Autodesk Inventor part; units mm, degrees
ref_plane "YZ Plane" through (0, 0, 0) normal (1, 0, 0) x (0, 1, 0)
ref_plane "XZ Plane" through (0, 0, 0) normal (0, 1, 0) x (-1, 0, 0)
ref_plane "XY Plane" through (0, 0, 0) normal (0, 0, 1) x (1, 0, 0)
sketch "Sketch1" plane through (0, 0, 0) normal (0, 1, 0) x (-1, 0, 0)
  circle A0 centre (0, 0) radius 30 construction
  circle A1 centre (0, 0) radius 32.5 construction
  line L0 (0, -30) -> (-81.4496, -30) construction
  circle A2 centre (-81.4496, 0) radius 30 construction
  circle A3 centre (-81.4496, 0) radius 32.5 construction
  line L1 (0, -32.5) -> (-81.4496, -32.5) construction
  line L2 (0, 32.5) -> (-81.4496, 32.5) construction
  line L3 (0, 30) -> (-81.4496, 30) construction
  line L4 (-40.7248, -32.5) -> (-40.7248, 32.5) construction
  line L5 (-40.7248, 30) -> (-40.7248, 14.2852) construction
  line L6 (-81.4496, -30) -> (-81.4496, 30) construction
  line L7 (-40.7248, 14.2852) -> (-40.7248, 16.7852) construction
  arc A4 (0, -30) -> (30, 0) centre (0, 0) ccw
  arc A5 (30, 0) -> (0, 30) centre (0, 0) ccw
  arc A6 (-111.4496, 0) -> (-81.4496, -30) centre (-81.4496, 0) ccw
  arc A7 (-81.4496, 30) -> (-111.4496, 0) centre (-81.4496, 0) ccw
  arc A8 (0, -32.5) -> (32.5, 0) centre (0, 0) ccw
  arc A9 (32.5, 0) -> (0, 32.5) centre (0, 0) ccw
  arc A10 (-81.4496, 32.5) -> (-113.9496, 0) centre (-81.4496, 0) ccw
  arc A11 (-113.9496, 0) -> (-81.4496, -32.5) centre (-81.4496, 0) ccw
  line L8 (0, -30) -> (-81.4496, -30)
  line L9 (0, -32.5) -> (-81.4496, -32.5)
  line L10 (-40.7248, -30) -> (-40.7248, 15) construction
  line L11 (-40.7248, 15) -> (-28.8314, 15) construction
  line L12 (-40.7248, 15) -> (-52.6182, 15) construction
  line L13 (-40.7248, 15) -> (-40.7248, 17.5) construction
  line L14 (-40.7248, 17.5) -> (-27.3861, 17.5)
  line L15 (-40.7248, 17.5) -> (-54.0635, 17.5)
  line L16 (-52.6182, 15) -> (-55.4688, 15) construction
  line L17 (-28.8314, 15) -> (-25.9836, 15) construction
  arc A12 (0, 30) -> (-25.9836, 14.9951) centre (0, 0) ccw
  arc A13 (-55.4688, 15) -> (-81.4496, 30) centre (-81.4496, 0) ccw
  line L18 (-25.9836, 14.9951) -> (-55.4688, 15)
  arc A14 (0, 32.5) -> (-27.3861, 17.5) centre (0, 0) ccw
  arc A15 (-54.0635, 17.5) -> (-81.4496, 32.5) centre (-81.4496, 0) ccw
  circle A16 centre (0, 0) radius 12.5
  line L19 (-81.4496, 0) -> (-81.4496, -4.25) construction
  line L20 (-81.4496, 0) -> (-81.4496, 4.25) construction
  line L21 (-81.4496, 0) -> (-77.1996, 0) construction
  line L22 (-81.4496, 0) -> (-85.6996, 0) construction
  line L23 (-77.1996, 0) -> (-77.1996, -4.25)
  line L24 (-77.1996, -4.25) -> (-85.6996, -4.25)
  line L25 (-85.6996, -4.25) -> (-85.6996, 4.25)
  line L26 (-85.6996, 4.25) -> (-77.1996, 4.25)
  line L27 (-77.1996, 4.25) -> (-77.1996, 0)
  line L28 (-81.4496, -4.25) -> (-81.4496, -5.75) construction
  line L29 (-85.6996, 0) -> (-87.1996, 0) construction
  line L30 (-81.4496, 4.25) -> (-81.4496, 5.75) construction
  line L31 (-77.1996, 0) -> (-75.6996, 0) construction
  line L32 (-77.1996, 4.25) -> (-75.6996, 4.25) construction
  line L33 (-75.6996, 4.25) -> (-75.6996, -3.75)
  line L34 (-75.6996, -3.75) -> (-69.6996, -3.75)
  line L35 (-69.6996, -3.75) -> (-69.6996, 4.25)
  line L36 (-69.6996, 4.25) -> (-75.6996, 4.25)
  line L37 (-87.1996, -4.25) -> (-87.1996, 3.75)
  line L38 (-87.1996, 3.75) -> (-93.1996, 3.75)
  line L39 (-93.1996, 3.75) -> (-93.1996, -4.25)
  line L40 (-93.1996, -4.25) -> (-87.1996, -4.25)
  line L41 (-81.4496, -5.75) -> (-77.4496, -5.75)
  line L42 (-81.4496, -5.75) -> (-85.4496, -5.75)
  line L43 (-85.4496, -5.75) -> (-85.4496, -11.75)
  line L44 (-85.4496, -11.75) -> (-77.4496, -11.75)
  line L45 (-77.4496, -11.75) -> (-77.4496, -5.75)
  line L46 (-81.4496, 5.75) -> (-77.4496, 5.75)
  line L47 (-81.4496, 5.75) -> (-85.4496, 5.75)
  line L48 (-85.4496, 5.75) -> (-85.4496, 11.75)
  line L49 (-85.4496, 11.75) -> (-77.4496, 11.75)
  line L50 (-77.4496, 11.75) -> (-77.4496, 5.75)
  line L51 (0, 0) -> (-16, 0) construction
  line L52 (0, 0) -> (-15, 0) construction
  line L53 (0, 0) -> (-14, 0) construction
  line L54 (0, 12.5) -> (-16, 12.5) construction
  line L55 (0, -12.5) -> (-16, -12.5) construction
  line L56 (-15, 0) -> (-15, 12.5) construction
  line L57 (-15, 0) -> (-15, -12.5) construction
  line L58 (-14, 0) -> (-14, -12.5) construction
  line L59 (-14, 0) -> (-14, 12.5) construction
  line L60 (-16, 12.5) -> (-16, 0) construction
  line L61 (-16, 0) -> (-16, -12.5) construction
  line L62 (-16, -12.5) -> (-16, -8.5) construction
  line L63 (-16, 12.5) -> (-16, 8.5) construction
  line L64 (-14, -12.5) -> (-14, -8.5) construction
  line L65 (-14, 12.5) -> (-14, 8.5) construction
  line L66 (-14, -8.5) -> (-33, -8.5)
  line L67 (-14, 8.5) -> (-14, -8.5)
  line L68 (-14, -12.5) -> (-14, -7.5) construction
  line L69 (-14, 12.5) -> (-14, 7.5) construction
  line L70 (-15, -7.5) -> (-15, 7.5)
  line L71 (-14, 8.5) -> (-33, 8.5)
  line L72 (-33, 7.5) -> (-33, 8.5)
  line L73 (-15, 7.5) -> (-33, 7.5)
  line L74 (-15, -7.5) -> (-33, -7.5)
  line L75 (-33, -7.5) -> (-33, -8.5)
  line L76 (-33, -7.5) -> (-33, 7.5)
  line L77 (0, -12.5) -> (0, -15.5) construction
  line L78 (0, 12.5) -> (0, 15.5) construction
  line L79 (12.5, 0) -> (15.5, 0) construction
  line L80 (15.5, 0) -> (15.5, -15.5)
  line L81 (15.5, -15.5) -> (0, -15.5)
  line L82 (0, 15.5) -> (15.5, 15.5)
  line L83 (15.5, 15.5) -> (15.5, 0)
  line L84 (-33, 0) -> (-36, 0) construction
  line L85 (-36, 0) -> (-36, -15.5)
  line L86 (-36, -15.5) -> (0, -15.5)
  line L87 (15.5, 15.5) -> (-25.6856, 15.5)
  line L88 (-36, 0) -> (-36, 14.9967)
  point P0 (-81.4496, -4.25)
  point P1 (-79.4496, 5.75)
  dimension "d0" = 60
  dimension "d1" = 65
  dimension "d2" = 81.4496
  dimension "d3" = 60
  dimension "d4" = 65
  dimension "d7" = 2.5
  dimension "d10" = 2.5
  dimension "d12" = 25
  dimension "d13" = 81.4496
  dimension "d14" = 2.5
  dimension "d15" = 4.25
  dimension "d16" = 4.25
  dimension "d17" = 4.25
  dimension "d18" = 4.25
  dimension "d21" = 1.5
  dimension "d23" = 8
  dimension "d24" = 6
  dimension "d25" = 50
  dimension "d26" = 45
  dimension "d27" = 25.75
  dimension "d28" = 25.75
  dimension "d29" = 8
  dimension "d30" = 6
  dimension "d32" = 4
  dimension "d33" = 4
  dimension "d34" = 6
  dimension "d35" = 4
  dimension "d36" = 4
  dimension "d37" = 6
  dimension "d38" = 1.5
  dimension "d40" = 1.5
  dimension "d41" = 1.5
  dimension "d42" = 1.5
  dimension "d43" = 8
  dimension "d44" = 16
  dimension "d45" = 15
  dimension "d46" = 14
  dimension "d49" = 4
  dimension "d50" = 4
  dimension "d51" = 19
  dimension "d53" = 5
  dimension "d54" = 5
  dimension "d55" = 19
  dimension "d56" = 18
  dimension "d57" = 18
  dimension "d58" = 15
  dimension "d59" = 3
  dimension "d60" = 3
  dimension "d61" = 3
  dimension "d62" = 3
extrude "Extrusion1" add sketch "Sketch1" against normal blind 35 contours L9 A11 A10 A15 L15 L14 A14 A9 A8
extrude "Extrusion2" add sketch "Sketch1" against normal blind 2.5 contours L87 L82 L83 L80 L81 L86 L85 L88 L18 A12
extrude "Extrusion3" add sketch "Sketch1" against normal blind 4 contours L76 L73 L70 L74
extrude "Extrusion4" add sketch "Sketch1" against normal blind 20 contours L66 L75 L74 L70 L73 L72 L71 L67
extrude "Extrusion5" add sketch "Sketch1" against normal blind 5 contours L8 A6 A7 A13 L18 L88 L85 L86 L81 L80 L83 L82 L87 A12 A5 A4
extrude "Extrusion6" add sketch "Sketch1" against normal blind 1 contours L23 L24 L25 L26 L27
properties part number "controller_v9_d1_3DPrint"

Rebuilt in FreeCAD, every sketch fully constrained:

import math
import FreeCAD as App
import Part
import Sketcher

V = App.Vector
Q = App.Units.Quantity

doc = App.newDocument("Part")
params = doc.addObject("Spreadsheet::Sheet", "Params")
for row, (alias, value) in enumerate([
    ("sketch1_radius", "30 mm"),
    ("sketch1_radius2", "32.5 mm"),
    ("pad1_length", "35 mm"),
    ("sketch2_diameter", "25 mm"),
    ("sketch2_radius", "30 mm"),
    ("sketch2_width", "19 mm"),
    ("sketch2_height", "31 mm"),
    ("sketch2_height2", "17 mm"),
    ("pad2_length", "2.5 mm"),
    ("sketch3_width", "18 mm"),
    ("sketch3_height", "15 mm"),
    ("pad3_length", "4 mm"),
    ("sketch4_width", "19 mm"),
    ("sketch4_width2", "18 mm"),
    ("sketch4_height", "15 mm"),
    ("pad4_length", "20 mm"),
    ("sketch5_radius", "30 mm"),
    ("sketch5_width", "8 mm"),
    ("sketch5_width2", "6 mm"),
    ("sketch5_height", "31 mm"),
    ("sketch5_width3", "51.5 mm"),
    ("pad5_length", "5 mm"),
    ("pad6_length", "1 mm"),
], start=1):
    params.set(f"A{row}", alias)
    params.set(f"B{row}", "=" + value)
    params.setAlias(f"B{row}", alias)

body = doc.addObject("PartDesign::Body", "Body")

sketch1 = body.newObject("Sketcher::SketchObject", "Sketch")
sketch1.AttachmentSupport = (doc.getObject("XZ_Plane"), [""])
sketch1.MapMode = "FlatFace"
sketch1.addGeometry(Part.LineSegment(V(81, -32, 0), V(0, -32, 0)), False)
sketch1.addGeometry(Part.ArcOfCircle(Part.Circle(V(0, 0, 0), V(0, 0, 1), 32), math.radians(90), math.radians(270)), False)
sketch1.addGeometry(Part.ArcOfCircle(Part.Circle(V(0, 0, 0), V(0, 0, 1), 32), math.radians(33), math.radians(90)), False)
sketch1.addGeometry(Part.LineSegment(V(27, 18, 0), V(54, 18, 0)), False)
sketch1.addGeometry(Part.ArcOfCircle(Part.Circle(V(81, 0, 0), V(0, 0, 1), 32), math.radians(90), math.radians(147)), False)
sketch1.addGeometry(Part.ArcOfCircle(Part.Circle(V(81, 0, 0), V(0, 0, 1), 32), math.radians(-90), math.radians(90)), False)
sketch1.addGeometry(Part.ArcOfCircle(Part.Circle(V(0, 0, 0), V(0, 0, 1), 30), math.radians(90), math.radians(270)), False)
sketch1.addGeometry(Part.LineSegment(V(0, -30, 0), V(81, -30, 0)), False)
sketch1.addGeometry(Part.ArcOfCircle(Part.Circle(V(81, 0, 0), V(0, 0, 1), 30), math.radians(-90), math.radians(90)), False)
sketch1.addGeometry(Part.ArcOfCircle(Part.Circle(V(81, 0, 0), V(0, 0, 1), 30), math.radians(90), math.radians(150)), False)
sketch1.addGeometry(Part.LineSegment(V(55, 15, 0), V(26, 15, 0)), False)
sketch1.addGeometry(Part.ArcOfCircle(Part.Circle(V(0, 0, 0), V(0, 0, 1), 30), math.radians(30), math.radians(90)), False)
sketch1.addConstraint(Sketcher.Constraint("Tangent", 0, 2, 1, 2))
sketch1.addConstraint(Sketcher.Constraint("Tangent", 1, 1, 2, 2))
sketch1.addConstraint(Sketcher.Constraint("Coincident", 2, 1, 3, 1))
sketch1.addConstraint(Sketcher.Constraint("Coincident", 3, 2, 4, 2))
sketch1.addConstraint(Sketcher.Constraint("Tangent", 4, 1, 5, 2))
sketch1.addConstraint(Sketcher.Constraint("Tangent", 5, 1, 0, 1))
sketch1.addConstraint(Sketcher.Constraint("Tangent", 6, 2, 7, 1))
sketch1.addConstraint(Sketcher.Constraint("Tangent", 7, 2, 8, 1))
sketch1.addConstraint(Sketcher.Constraint("Tangent", 8, 2, 9, 1))
sketch1.addConstraint(Sketcher.Constraint("Coincident", 9, 2, 10, 1))
sketch1.addConstraint(Sketcher.Constraint("Coincident", 10, 2, 11, 1))
sketch1.addConstraint(Sketcher.Constraint("Tangent", 11, 2, 6, 1))
sketch1.addConstraint(Sketcher.Constraint("Horizontal", 0))
sketch1.addConstraint(Sketcher.Constraint("Horizontal", 3))
sketch1.addConstraint(Sketcher.Constraint("Horizontal", 7))
sketch1.addConstraint(Sketcher.Constraint("Coincident", 1, 3, -1, 1))
sketch1.addConstraint(Sketcher.Constraint("Coincident", 6, 3, -1, 1))
sketch1.addConstraint(Sketcher.Constraint("Coincident", 8, 3, 4, 3))
sketch1.addConstraint(Sketcher.Constraint("Equal", 1, 2))
sketch1.addConstraint(Sketcher.Constraint("Equal", 2, 4))
sketch1.addConstraint(Sketcher.Constraint("Equal", 4, 5))
sketch1.addConstraint(Sketcher.Constraint("Equal", 8, 9))
sketch1.addConstraint(Sketcher.Constraint("Equal", 9, 11))
sketch1.addConstraint(Sketcher.Constraint("PointOnObject", 1, 1, -2))
sketch1.addConstraint(Sketcher.Constraint("PointOnObject", 11, 2, -2))
sketch1.addConstraint(Sketcher.Constraint("Vertical", 9, 3, 4, 1))
sketch1.addConstraint(Sketcher.Constraint("Vertical", 7, 2, 8, 2))
sketch1.addConstraint(Sketcher.Constraint("Radius", 6, Q("30 mm")))
sketch1.addConstraint(Sketcher.Constraint("Radius", 1, Q("32.5 mm")))
sketch1.addConstraint(Sketcher.Constraint("DistanceY", -1, 1, 9, 2, Q("15 mm")))
sketch1.addConstraint(Sketcher.Constraint("DistanceY", 2, 1, 1, 1, Q("15 mm")))
sketch1.addConstraint(Sketcher.Constraint("DistanceX", 0, 2, 0, 1, Q("81.4496 mm")))
sketch1.addConstraint(Sketcher.Constraint("Angle", 10, Q("-179.9905 deg")))
sketch1.setExpression("Constraints[27]", "Params.sketch1_radius")
sketch1.setExpression("Constraints[28]", "Params.sketch1_radius2")
pad1 = body.newObject("PartDesign::Pad", "Pad")
pad1.Profile = sketch1
pad1.setExpression("Length", "Params.pad1_length")

sketch2 = body.newObject("Sketcher::SketchObject", "Sketch001")
sketch2.AttachmentSupport = (doc.getObject("XZ_Plane"), [""])
sketch2.MapMode = "FlatFace"
sketch2.addGeometry(Part.LineSegment(V(-15.5, 15.5, 0), V(25.7, 15.5, 0)), False)
sketch2.addGeometry(Part.ArcOfCircle(Part.Circle(V(0, 0, 0), V(0, 0, 1), 30), math.radians(29.99), math.radians(31.11)), False)
sketch2.addGeometry(Part.LineSegment(V(26, 15, 0), V(36, 15, 0)), False)
sketch2.addGeometry(Part.LineSegment(V(36, 15, 0), V(36, -15.5, 0)), False)
sketch2.addGeometry(Part.LineSegment(V(36, -15.5, 0), V(-15.5, -15.5, 0)), False)
sketch2.addGeometry(Part.LineSegment(V(-15.5, -15.5, 0), V(-15.5, 15.5, 0)), False)
sketch2.addGeometry(Part.LineSegment(V(14, 8.5, 0), V(14, -8.5, 0)), False)
sketch2.addGeometry(Part.LineSegment(V(14, -8.5, 0), V(33, -8.5, 0)), False)
sketch2.addGeometry(Part.LineSegment(V(33, -8.5, 0), V(33, 8.5, 0)), False)
sketch2.addGeometry(Part.LineSegment(V(33, 8.5, 0), V(14, 8.5, 0)), False)
sketch2.addGeometry(Part.Circle(V(0, 0, 0), V(0, 0, 1), 12.5), False)
sketch2.addConstraint(Sketcher.Constraint("Coincident", 0, 2, 1, 2))
sketch2.addConstraint(Sketcher.Constraint("Coincident", 1, 1, 2, 1))
sketch2.addConstraint(Sketcher.Constraint("Coincident", 2, 2, 3, 1))
sketch2.addConstraint(Sketcher.Constraint("Coincident", 3, 2, 4, 1))
sketch2.addConstraint(Sketcher.Constraint("Coincident", 4, 2, 5, 1))
sketch2.addConstraint(Sketcher.Constraint("Coincident", 5, 2, 0, 1))
sketch2.addConstraint(Sketcher.Constraint("Coincident", 6, 2, 7, 1))
sketch2.addConstraint(Sketcher.Constraint("Coincident", 7, 2, 8, 1))
sketch2.addConstraint(Sketcher.Constraint("Coincident", 8, 2, 9, 1))
sketch2.addConstraint(Sketcher.Constraint("Coincident", 9, 2, 6, 1))
sketch2.addConstraint(Sketcher.Constraint("Horizontal", 0))
sketch2.addConstraint(Sketcher.Constraint("Vertical", 3))
sketch2.addConstraint(Sketcher.Constraint("Horizontal", 4))
sketch2.addConstraint(Sketcher.Constraint("Vertical", 5))
sketch2.addConstraint(Sketcher.Constraint("Vertical", 6))
sketch2.addConstraint(Sketcher.Constraint("Horizontal", 7))
sketch2.addConstraint(Sketcher.Constraint("Vertical", 8))
sketch2.addConstraint(Sketcher.Constraint("Horizontal", 9))
sketch2.addConstraint(Sketcher.Constraint("Coincident", 1, 3, -1, 1))
sketch2.addConstraint(Sketcher.Constraint("Coincident", 10, 3, -1, 1))
sketch2.addConstraint(Sketcher.Constraint("Diameter", 10, Q("25 mm")))
sketch2.addConstraint(Sketcher.Constraint("Radius", 1, Q("30 mm")))
sketch2.addConstraint(Sketcher.Constraint("DistanceX", 7, 1, 7, 2, Q("19 mm")))
sketch2.addConstraint(Sketcher.Constraint("DistanceX", -1, 1, 6, 2, Q("14 mm")))
sketch2.addConstraint(Sketcher.Constraint("DistanceX", 7, 2, 3, 2, Q("3 mm")))
sketch2.addConstraint(Sketcher.Constraint("DistanceY", 5, 1, 5, 2, Q("31 mm")))
sketch2.addConstraint(Sketcher.Constraint("DistanceY", 6, 2, 6, 1, Q("17 mm")))
sketch2.addConstraint(Sketcher.Constraint("DistanceX", 4, 2, 4, 1, Q("51.5 mm")))
sketch2.addConstraint(Sketcher.Constraint("DistanceY", 3, 2, 6, 2, Q("7 mm")))
sketch2.addConstraint(Sketcher.Constraint("DistanceY", -1, 1, 0, 2, Q("15.5 mm")))
sketch2.addConstraint(Sketcher.Constraint("Angle", 2, Q("0.0095 deg")))
sketch2.addConstraint(Sketcher.Constraint("DistanceY", 3, 2, 3, 1, Q("30.4967 mm")))
sketch2.setExpression("Constraints[20]", "Params.sketch2_diameter")
sketch2.setExpression("Constraints[21]", "Params.sketch2_radius")
sketch2.setExpression("Constraints[22]", "Params.sketch2_width")
sketch2.setExpression("Constraints[25]", "Params.sketch2_height")
sketch2.setExpression("Constraints[26]", "Params.sketch2_height2")
pad2 = body.newObject("PartDesign::Pad", "Pad001")
pad2.Profile = sketch2
pad2.setExpression("Length", "Params.pad2_length")

sketch3 = body.newObject("Sketcher::SketchObject", "Sketch002")
sketch3.AttachmentSupport = (doc.getObject("XZ_Plane"), [""])
sketch3.MapMode = "FlatFace"
sketch3.addGeometry(Part.LineSegment(V(33, 8, 0), V(33, -8, 0)), False)
sketch3.addGeometry(Part.LineSegment(V(33, -8, 0), V(15, -8, 0)), False)
sketch3.addGeometry(Part.LineSegment(V(15, -8, 0), V(15, 8, 0)), False)
sketch3.addGeometry(Part.LineSegment(V(15, 8, 0), V(33, 8, 0)), False)
sketch3.addConstraint(Sketcher.Constraint("Coincident", 0, 2, 1, 1))
sketch3.addConstraint(Sketcher.Constraint("Coincident", 1, 2, 2, 1))
sketch3.addConstraint(Sketcher.Constraint("Coincident", 2, 2, 3, 1))
sketch3.addConstraint(Sketcher.Constraint("Coincident", 3, 2, 0, 1))
sketch3.addConstraint(Sketcher.Constraint("Vertical", 0))
sketch3.addConstraint(Sketcher.Constraint("Horizontal", 1))
sketch3.addConstraint(Sketcher.Constraint("Vertical", 2))
sketch3.addConstraint(Sketcher.Constraint("Horizontal", 3))
sketch3.addConstraint(Sketcher.Constraint("DistanceX", 1, 2, 1, 1, Q("18 mm")))
sketch3.addConstraint(Sketcher.Constraint("DistanceY", 0, 2, 0, 1, Q("15 mm")))
sketch3.addConstraint(Sketcher.Constraint("DistanceX", -1, 1, 1, 2, Q("15 mm")))
sketch3.addConstraint(Sketcher.Constraint("DistanceY", 0, 2, -1, 1, Q("7.5 mm")))
sketch3.setExpression("Constraints[8]", "Params.sketch3_width")
sketch3.setExpression("Constraints[9]", "Params.sketch3_height")
pad3 = body.newObject("PartDesign::Pad", "Pad002")
pad3.Profile = sketch3
pad3.setExpression("Length", "Params.pad3_length")

sketch4 = body.newObject("Sketcher::SketchObject", "Sketch003")
sketch4.AttachmentSupport = (doc.getObject("XZ_Plane"), [""])
sketch4.MapMode = "FlatFace"
sketch4.addGeometry(Part.LineSegment(V(33, -8.5, 0), V(14, -8.5, 0)), False)
sketch4.addGeometry(Part.LineSegment(V(14, -8.5, 0), V(14, 8.5, 0)), False)
sketch4.addGeometry(Part.LineSegment(V(14, 8.5, 0), V(33, 8.5, 0)), False)
sketch4.addGeometry(Part.LineSegment(V(33, 8.5, 0), V(33, 7.5, 0)), False)
sketch4.addGeometry(Part.LineSegment(V(33, 7.5, 0), V(15, 7.5, 0)), False)
sketch4.addGeometry(Part.LineSegment(V(15, 7.5, 0), V(15, -7.5, 0)), False)
sketch4.addGeometry(Part.LineSegment(V(15, -7.5, 0), V(33, -7.5, 0)), False)
sketch4.addGeometry(Part.LineSegment(V(33, -7.5, 0), V(33, -8.5, 0)), False)
sketch4.addConstraint(Sketcher.Constraint("Coincident", 0, 2, 1, 1))
sketch4.addConstraint(Sketcher.Constraint("Coincident", 1, 2, 2, 1))
sketch4.addConstraint(Sketcher.Constraint("Coincident", 2, 2, 3, 1))
sketch4.addConstraint(Sketcher.Constraint("Coincident", 3, 2, 4, 1))
sketch4.addConstraint(Sketcher.Constraint("Coincident", 4, 2, 5, 1))
sketch4.addConstraint(Sketcher.Constraint("Coincident", 5, 2, 6, 1))
sketch4.addConstraint(Sketcher.Constraint("Coincident", 6, 2, 7, 1))
sketch4.addConstraint(Sketcher.Constraint("Coincident", 7, 2, 0, 1))
sketch4.addConstraint(Sketcher.Constraint("Horizontal", 0))
sketch4.addConstraint(Sketcher.Constraint("Vertical", 1))
sketch4.addConstraint(Sketcher.Constraint("Horizontal", 2))
sketch4.addConstraint(Sketcher.Constraint("Vertical", 3))
sketch4.addConstraint(Sketcher.Constraint("Horizontal", 4))
sketch4.addConstraint(Sketcher.Constraint("Vertical", 5))
sketch4.addConstraint(Sketcher.Constraint("Horizontal", 6))
sketch4.addConstraint(Sketcher.Constraint("Vertical", 7))
sketch4.addConstraint(Sketcher.Constraint("Symmetric", 3, 2, 6, 2, -1))
sketch4.addConstraint(Sketcher.Constraint("Equal", 3, 7))
sketch4.addConstraint(Sketcher.Constraint("DistanceX", 0, 2, 0, 1, Q("19 mm")))
sketch4.addConstraint(Sketcher.Constraint("DistanceX", 4, 2, 4, 1, Q("18 mm")))
sketch4.addConstraint(Sketcher.Constraint("DistanceY", 5, 2, 5, 1, Q("15 mm")))
sketch4.addConstraint(Sketcher.Constraint("DistanceX", -1, 1, 0, 2, Q("14 mm")))
sketch4.addConstraint(Sketcher.Constraint("DistanceY", 0, 2, 3, 2, Q("16 mm")))
sketch4.setExpression("Constraints[18]", "Params.sketch4_width")
sketch4.setExpression("Constraints[19]", "Params.sketch4_width2")
sketch4.setExpression("Constraints[20]", "Params.sketch4_height")
pad4 = body.newObject("PartDesign::Pad", "Pad003")
pad4.Profile = sketch4
pad4.setExpression("Length", "Params.pad4_length")

sketch5 = body.newObject("Sketcher::SketchObject", "Sketch004")
sketch5.AttachmentSupport = (doc.getObject("XZ_Plane"), [""])
sketch5.MapMode = "FlatFace"
sketch5.addGeometry(Part.LineSegment(V(81, -30, 0), V(0, -30, 0)), False)
sketch5.addGeometry(Part.ArcOfCircle(Part.Circle(V(0, 0, 0), V(0, 0, 1), 30), math.radians(90), math.radians(270)), False)
sketch5.addGeometry(Part.ArcOfCircle(Part.Circle(V(0, 0, 0), V(0, 0, 1), 30), math.radians(31), math.radians(90)), False)
sketch5.addGeometry(Part.LineSegment(V(26, 16, 0), V(-16, 16, 0)), False)
sketch5.addGeometry(Part.LineSegment(V(-16, 16, 0), V(-16, -16, 0)), False)
sketch5.addGeometry(Part.LineSegment(V(-16, -16, 0), V(36, -16, 0)), False)
sketch5.addGeometry(Part.LineSegment(V(36, -16, 0), V(36, 15, 0)), False)
sketch5.addGeometry(Part.LineSegment(V(36, 15, 0), V(55, 15, 0)), False)
sketch5.addGeometry(Part.ArcOfCircle(Part.Circle(V(81, 0, 0), V(0, 0, 1), 30), math.radians(90), math.radians(150)), False)
sketch5.addGeometry(Part.ArcOfCircle(Part.Circle(V(81, 0, 0), V(0, 0, 1), 30), math.radians(-90), math.radians(90)), False)
sketch5.addGeometry(Part.LineSegment(V(85, -6, 0), V(77, -6, 0)), False)
sketch5.addGeometry(Part.LineSegment(V(77, -6, 0), V(77, -12, 0)), False)
sketch5.addGeometry(Part.LineSegment(V(77, -12, 0), V(85, -12, 0)), False)
sketch5.addGeometry(Part.LineSegment(V(85, -12, 0), V(85, -6, 0)), False)
sketch5.addGeometry(Part.LineSegment(V(87, 4, 0), V(87, -4, 0)), False)
sketch5.addGeometry(Part.LineSegment(V(87, -4, 0), V(93, -4, 0)), False)
sketch5.addGeometry(Part.LineSegment(V(93, -4, 0), V(93, 4, 0)), False)
sketch5.addGeometry(Part.LineSegment(V(93, 4, 0), V(87, 4, 0)), False)
sketch5.addGeometry(Part.LineSegment(V(77, 4, 0), V(77, -4, 0)), False)
sketch5.addGeometry(Part.LineSegment(V(77, -4, 0), V(86, -4, 0)), False)
sketch5.addGeometry(Part.LineSegment(V(86, -4, 0), V(86, 4, 0)), False)
sketch5.addGeometry(Part.LineSegment(V(86, 4, 0), V(77, 4, 0)), False)
sketch5.addGeometry(Part.LineSegment(V(77, 6, 0), V(85, 6, 0)), False)
sketch5.addGeometry(Part.LineSegment(V(85, 6, 0), V(85, 12, 0)), False)
sketch5.addGeometry(Part.LineSegment(V(85, 12, 0), V(77, 12, 0)), False)
sketch5.addGeometry(Part.LineSegment(V(77, 12, 0), V(77, 6, 0)), False)
sketch5.addGeometry(Part.LineSegment(V(76, -4, 0), V(76, 4, 0)), False)
sketch5.addGeometry(Part.LineSegment(V(76, 4, 0), V(70, 4, 0)), False)
sketch5.addGeometry(Part.LineSegment(V(70, 4, 0), V(70, -4, 0)), False)
sketch5.addGeometry(Part.LineSegment(V(70, -4, 0), V(76, -4, 0)), False)
sketch5.addConstraint(Sketcher.Constraint("Tangent", 0, 2, 1, 2))
sketch5.addConstraint(Sketcher.Constraint("Tangent", 1, 1, 2, 2))
sketch5.addConstraint(Sketcher.Constraint("Coincident", 2, 1, 3, 1))
sketch5.addConstraint(Sketcher.Constraint("Coincident", 3, 2, 4, 1))
sketch5.addConstraint(Sketcher.Constraint("Coincident", 4, 2, 5, 1))
sketch5.addConstraint(Sketcher.Constraint("Coincident", 5, 2, 6, 1))
sketch5.addConstraint(Sketcher.Constraint("Coincident", 6, 2, 7, 1))
sketch5.addConstraint(Sketcher.Constraint("Coincident", 7, 2, 8, 2))
sketch5.addConstraint(Sketcher.Constraint("Tangent", 8, 1, 9, 2))
sketch5.addConstraint(Sketcher.Constraint("Tangent", 9, 1, 0, 1))
sketch5.addConstraint(Sketcher.Constraint("Coincident", 10, 2, 11, 1))
sketch5.addConstraint(Sketcher.Constraint("Coincident", 11, 2, 12, 1))
sketch5.addConstraint(Sketcher.Constraint("Coincident", 12, 2, 13, 1))
sketch5.addConstraint(Sketcher.Constraint("Coincident", 13, 2, 10, 1))
sketch5.addConstraint(Sketcher.Constraint("Coincident", 14, 2, 15, 1))
sketch5.addConstraint(Sketcher.Constraint("Coincident", 15, 2, 16, 1))
sketch5.addConstraint(Sketcher.Constraint("Coincident", 16, 2, 17, 1))
sketch5.addConstraint(Sketcher.Constraint("Coincident", 17, 2, 14, 1))
sketch5.addConstraint(Sketcher.Constraint("Coincident", 18, 2, 19, 1))
sketch5.addConstraint(Sketcher.Constraint("Coincident", 19, 2, 20, 1))
sketch5.addConstraint(Sketcher.Constraint("Coincident", 20, 2, 21, 1))
sketch5.addConstraint(Sketcher.Constraint("Coincident", 21, 2, 18, 1))
sketch5.addConstraint(Sketcher.Constraint("Coincident", 22, 2, 23, 1))
sketch5.addConstraint(Sketcher.Constraint("Coincident", 23, 2, 24, 1))
sketch5.addConstraint(Sketcher.Constraint("Coincident", 24, 2, 25, 1))
sketch5.addConstraint(Sketcher.Constraint("Coincident", 25, 2, 22, 1))
sketch5.addConstraint(Sketcher.Constraint("Coincident", 26, 2, 27, 1))
sketch5.addConstraint(Sketcher.Constraint("Coincident", 27, 2, 28, 1))
sketch5.addConstraint(Sketcher.Constraint("Coincident", 28, 2, 29, 1))
sketch5.addConstraint(Sketcher.Constraint("Coincident", 29, 2, 26, 1))
sketch5.addConstraint(Sketcher.Constraint("Horizontal", 0))
sketch5.addConstraint(Sketcher.Constraint("Horizontal", 3))
sketch5.addConstraint(Sketcher.Constraint("Vertical", 4))
sketch5.addConstraint(Sketcher.Constraint("Horizontal", 5))
sketch5.addConstraint(Sketcher.Constraint("Vertical", 6))
sketch5.addConstraint(Sketcher.Constraint("Horizontal", 10))
sketch5.addConstraint(Sketcher.Constraint("Vertical", 11))
sketch5.addConstraint(Sketcher.Constraint("Horizontal", 12))
sketch5.addConstraint(Sketcher.Constraint("Vertical", 13))
sketch5.addConstraint(Sketcher.Constraint("Vertical", 14))
sketch5.addConstraint(Sketcher.Constraint("Horizontal", 15))
sketch5.addConstraint(Sketcher.Constraint("Vertical", 16))
sketch5.addConstraint(Sketcher.Constraint("Horizontal", 17))
sketch5.addConstraint(Sketcher.Constraint("Vertical", 18))
sketch5.addConstraint(Sketcher.Constraint("Horizontal", 19))
sketch5.addConstraint(Sketcher.Constraint("Vertical", 20))
sketch5.addConstraint(Sketcher.Constraint("Horizontal", 21))
sketch5.addConstraint(Sketcher.Constraint("Horizontal", 22))
sketch5.addConstraint(Sketcher.Constraint("Vertical", 23))
sketch5.addConstraint(Sketcher.Constraint("Horizontal", 24))
sketch5.addConstraint(Sketcher.Constraint("Vertical", 25))
sketch5.addConstraint(Sketcher.Constraint("Vertical", 26))
sketch5.addConstraint(Sketcher.Constraint("Horizontal", 27))
sketch5.addConstraint(Sketcher.Constraint("Vertical", 28))
sketch5.addConstraint(Sketcher.Constraint("Horizontal", 29))
sketch5.addConstraint(Sketcher.Constraint("Coincident", 1, 3, -1, 1))
sketch5.addConstraint(Sketcher.Constraint("Equal", 1, 2))
sketch5.addConstraint(Sketcher.Constraint("Equal", 2, 8))
sketch5.addConstraint(Sketcher.Constraint("Equal", 8, 9))
sketch5.addConstraint(Sketcher.Constraint("Symmetric", 13, 2, 22, 2, -1))
sketch5.addConstraint(Sketcher.Constraint("Symmetric", 11, 2, 24, 2, -1))
sketch5.addConstraint(Sketcher.Constraint("PointOnObject", 1, 1, -2))
sketch5.addConstraint(Sketcher.Constraint("Horizontal", 15, 2, 18, 2))
sketch5.addConstraint(Sketcher.Constraint("Horizontal", 21, 2, 26, 2))
sketch5.addConstraint(Sketcher.Constraint("Vertical", 9, 3, 8, 1))
sketch5.addConstraint(Sketcher.Constraint("Equal", 17, 27))
sketch5.addConstraint(Sketcher.Constraint("Equal", 29, 11))
sketch5.addConstraint(Sketcher.Constraint("Equal", 24, 14))
sketch5.addConstraint(Sketcher.Constraint("Equal", 21, 18))
sketch5.addConstraint(Sketcher.Constraint("Equal", 16, 26))
sketch5.addConstraint(Sketcher.Constraint("Radius", 1, Q("30 mm")))
sketch5.addConstraint(Sketcher.Constraint("DistanceX", 10, 2, 10, 1, Q("8 mm")))
sketch5.addConstraint(Sketcher.Constraint("DistanceX", 15, 1, 15, 2, Q("6 mm")))
sketch5.addConstraint(Sketcher.Constraint("DistanceY", -1, 1, 7, 2, Q("15 mm")))
sketch5.addConstraint(Sketcher.Constraint("DistanceX", 10, 2, 8, 3, Q("4 mm")))
sketch5.addConstraint(Sketcher.Constraint("DistanceY", 17, 2, 23, 2, Q("8 mm")))
sketch5.addConstraint(Sketcher.Constraint("DistanceY", 13, 2, 14, 2, Q("1.5 mm")))
sketch5.addConstraint(Sketcher.Constraint("DistanceX", 19, 2, 14, 2, Q("1.5 mm")))
sketch5.addConstraint(Sketcher.Constraint("DistanceY", 20, 2, 22, 2, Q("1.5 mm")))
sketch5.addConstraint(Sketcher.Constraint("DistanceX", 26, 2, 21, 2, Q("1.5 mm")))
sketch5.addConstraint(Sketcher.Constraint("DistanceY", 4, 2, 4, 1, Q("31 mm")))
sketch5.addConstraint(Sketcher.Constraint("DistanceX", 18, 2, 8, 3, Q("4.25 mm")))
sketch5.addConstraint(Sketcher.Constraint("DistanceX", 0, 2, 0, 1, Q("81.4496 mm")))
sketch5.addConstraint(Sketcher.Constraint("DistanceX", 5, 1, 5, 2, Q("51.5 mm")))
sketch5.addConstraint(Sketcher.Constraint("DistanceX", -1, 1, 5, 2, Q("36 mm")))
sketch5.addConstraint(Sketcher.Constraint("DistanceY", -1, 1, 2, 1, Q("15.5 mm")))
sketch5.addConstraint(Sketcher.Constraint("Angle", 7, Q("0.0095 deg")))
sketch5.setExpression("Constraints[70]", "Params.sketch5_radius")
sketch5.setExpression("Constraints[71]", "Params.sketch5_width")
sketch5.setExpression("Constraints[72]", "Params.sketch5_width2")
sketch5.setExpression("Constraints[80]", "Params.sketch5_height")
sketch5.setExpression("Constraints[83]", "Params.sketch5_width3")
pad5 = body.newObject("PartDesign::Pad", "Pad004")
pad5.Profile = sketch5
pad5.setExpression("Length", "Params.pad5_length")

sketch6 = body.newObject("Sketcher::SketchObject", "Sketch005")
sketch6.AttachmentSupport = (doc.getObject("XZ_Plane"), [""])
sketch6.MapMode = "FlatFace"
sketch6.addGeometry(Part.LineSegment(V(77, -4, 0), V(77, 4, 0)), False)
sketch6.addGeometry(Part.LineSegment(V(77, 4, 0), V(86, 4, 0)), False)
sketch6.addGeometry(Part.LineSegment(V(86, 4, 0), V(86, -4, 0)), False)
sketch6.addGeometry(Part.LineSegment(V(86, -4, 0), V(77, -4, 0)), False)
sketch6.addConstraint(Sketcher.Constraint("Coincident", 0, 2, 1, 1))
sketch6.addConstraint(Sketcher.Constraint("Coincident", 1, 2, 2, 1))
sketch6.addConstraint(Sketcher.Constraint("Coincident", 2, 2, 3, 1))
sketch6.addConstraint(Sketcher.Constraint("Coincident", 3, 2, 0, 1))
sketch6.addConstraint(Sketcher.Constraint("Vertical", 0))
sketch6.addConstraint(Sketcher.Constraint("Horizontal", 1))
sketch6.addConstraint(Sketcher.Constraint("Vertical", 2))
sketch6.addConstraint(Sketcher.Constraint("Horizontal", 3))
sketch6.addConstraint(Sketcher.Constraint("Equal", 3, 0))
sketch6.addConstraint(Sketcher.Constraint("DistanceY", -1, 1, 0, 2, Q("4.25 mm")))
sketch6.addConstraint(Sketcher.Constraint("DistanceY", 2, 2, -1, 1, Q("4.25 mm")))
sketch6.addConstraint(Sketcher.Constraint("DistanceX", -1, 1, 0, 2, Q("77.1996 mm")))
pad6 = body.newObject("PartDesign::Pad", "Pad005")
pad6.Profile = sketch6
pad6.setExpression("Length", "Params.pad6_length")

doc.recompute()
